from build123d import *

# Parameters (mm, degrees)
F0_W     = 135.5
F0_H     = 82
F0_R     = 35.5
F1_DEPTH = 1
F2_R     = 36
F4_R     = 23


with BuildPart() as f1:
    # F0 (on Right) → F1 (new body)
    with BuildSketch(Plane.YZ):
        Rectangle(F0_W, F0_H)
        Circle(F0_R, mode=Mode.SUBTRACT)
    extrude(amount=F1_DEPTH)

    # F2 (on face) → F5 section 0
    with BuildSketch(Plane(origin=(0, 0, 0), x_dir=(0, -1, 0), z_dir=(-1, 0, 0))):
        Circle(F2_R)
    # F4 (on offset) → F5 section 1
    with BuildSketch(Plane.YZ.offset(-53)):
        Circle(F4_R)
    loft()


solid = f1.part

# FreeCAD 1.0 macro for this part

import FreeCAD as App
import Part
import Sketcher

V = App.Vector

doc = App.newDocument("Part")
body = doc.addObject("PartDesign::Body", "Body")

# Sketch on YZ plane
sketch1 = body.newObject("Sketcher::SketchObject", "Sketch")
sketch1.AttachmentSupport = (doc.getObject("YZ_Plane"), [""])
sketch1.MapMode = "FlatFace"
sketch1.addGeometry([
    Part.LineSegment(V(-68, 41, 0), V(-68, -41, 0)),  # 0
    Part.LineSegment(V(-68, -41, 0), V(68, -41, 0)),  # 1
    Part.LineSegment(V(68, -41, 0), V(68, 41, 0)),  # 2
    Part.LineSegment(V(68, 41, 0), V(-68, 41, 0)),  # 3
    Part.Circle(V(0, 0, 0), V(0, 0, 1), 36),  # 4
], False)
sketch1.addConstraint([
    Sketcher.Constraint("Coincident", 0, 2, 1, 1),
    Sketcher.Constraint("Coincident", 1, 2, 2, 1),
    Sketcher.Constraint("Coincident", 2, 2, 3, 1),
    Sketcher.Constraint("Coincident", 3, 2, 0, 1),
    Sketcher.Constraint("Vertical", 0),
    Sketcher.Constraint("Horizontal", 1),
    Sketcher.Constraint("Vertical", 2),
    Sketcher.Constraint("Horizontal", 3),
    Sketcher.Constraint("Coincident", 4, 3, -1, 1),
    Sketcher.Constraint("Symmetric", 0, 2, 2, 2, -1, 1),
    Sketcher.Constraint("Diameter", 4, 71.0),
    Sketcher.Constraint("DistanceY", 0, 2, 0, 1, 82.0),
    Sketcher.Constraint("DistanceX", 1, 1, 1, 2, 135.5),
])
pad1 = body.newObject("PartDesign::Pad", "Pad")
pad1.Profile = sketch1
pad1.Length = 1

# Sketch on YZ plane
sketch2 = body.newObject("Sketcher::SketchObject", "Sketch001")
sketch2.AttachmentSupport = (doc.getObject("YZ_Plane"), [""])
sketch2.MapMode = "FlatFace"
sketch2.addGeometry(Part.Circle(V(0, 0, 0), V(0, 0, 1), 36), False)
sketch2.addConstraint([
    Sketcher.Constraint("Coincident", 0, 3, -1, 1),
    Sketcher.Constraint("Diameter", 0, 72.0),
])

# Sketch on YZ plane
sketch3 = body.newObject("Sketcher::SketchObject", "Sketch002")
sketch3.AttachmentSupport = (doc.getObject("YZ_Plane"), [""])
sketch3.MapMode = "FlatFace"
sketch3.AttachmentOffset = App.Placement(V(0, 0, -53), App.Rotation())
sketch3.addGeometry(Part.Circle(V(0, 0, 0), V(0, 0, 1), 23), False)
sketch3.addConstraint([
    Sketcher.Constraint("Coincident", 0, 3, -1, 1),
    Sketcher.Constraint("Diameter", 0, 46.0),
])

additiveloft = body.newObject("PartDesign::AdditiveLoft", "AdditiveLoft")
additiveloft.Profile = sketch2
additiveloft.Sections = [sketch3]

doc.recompute()
